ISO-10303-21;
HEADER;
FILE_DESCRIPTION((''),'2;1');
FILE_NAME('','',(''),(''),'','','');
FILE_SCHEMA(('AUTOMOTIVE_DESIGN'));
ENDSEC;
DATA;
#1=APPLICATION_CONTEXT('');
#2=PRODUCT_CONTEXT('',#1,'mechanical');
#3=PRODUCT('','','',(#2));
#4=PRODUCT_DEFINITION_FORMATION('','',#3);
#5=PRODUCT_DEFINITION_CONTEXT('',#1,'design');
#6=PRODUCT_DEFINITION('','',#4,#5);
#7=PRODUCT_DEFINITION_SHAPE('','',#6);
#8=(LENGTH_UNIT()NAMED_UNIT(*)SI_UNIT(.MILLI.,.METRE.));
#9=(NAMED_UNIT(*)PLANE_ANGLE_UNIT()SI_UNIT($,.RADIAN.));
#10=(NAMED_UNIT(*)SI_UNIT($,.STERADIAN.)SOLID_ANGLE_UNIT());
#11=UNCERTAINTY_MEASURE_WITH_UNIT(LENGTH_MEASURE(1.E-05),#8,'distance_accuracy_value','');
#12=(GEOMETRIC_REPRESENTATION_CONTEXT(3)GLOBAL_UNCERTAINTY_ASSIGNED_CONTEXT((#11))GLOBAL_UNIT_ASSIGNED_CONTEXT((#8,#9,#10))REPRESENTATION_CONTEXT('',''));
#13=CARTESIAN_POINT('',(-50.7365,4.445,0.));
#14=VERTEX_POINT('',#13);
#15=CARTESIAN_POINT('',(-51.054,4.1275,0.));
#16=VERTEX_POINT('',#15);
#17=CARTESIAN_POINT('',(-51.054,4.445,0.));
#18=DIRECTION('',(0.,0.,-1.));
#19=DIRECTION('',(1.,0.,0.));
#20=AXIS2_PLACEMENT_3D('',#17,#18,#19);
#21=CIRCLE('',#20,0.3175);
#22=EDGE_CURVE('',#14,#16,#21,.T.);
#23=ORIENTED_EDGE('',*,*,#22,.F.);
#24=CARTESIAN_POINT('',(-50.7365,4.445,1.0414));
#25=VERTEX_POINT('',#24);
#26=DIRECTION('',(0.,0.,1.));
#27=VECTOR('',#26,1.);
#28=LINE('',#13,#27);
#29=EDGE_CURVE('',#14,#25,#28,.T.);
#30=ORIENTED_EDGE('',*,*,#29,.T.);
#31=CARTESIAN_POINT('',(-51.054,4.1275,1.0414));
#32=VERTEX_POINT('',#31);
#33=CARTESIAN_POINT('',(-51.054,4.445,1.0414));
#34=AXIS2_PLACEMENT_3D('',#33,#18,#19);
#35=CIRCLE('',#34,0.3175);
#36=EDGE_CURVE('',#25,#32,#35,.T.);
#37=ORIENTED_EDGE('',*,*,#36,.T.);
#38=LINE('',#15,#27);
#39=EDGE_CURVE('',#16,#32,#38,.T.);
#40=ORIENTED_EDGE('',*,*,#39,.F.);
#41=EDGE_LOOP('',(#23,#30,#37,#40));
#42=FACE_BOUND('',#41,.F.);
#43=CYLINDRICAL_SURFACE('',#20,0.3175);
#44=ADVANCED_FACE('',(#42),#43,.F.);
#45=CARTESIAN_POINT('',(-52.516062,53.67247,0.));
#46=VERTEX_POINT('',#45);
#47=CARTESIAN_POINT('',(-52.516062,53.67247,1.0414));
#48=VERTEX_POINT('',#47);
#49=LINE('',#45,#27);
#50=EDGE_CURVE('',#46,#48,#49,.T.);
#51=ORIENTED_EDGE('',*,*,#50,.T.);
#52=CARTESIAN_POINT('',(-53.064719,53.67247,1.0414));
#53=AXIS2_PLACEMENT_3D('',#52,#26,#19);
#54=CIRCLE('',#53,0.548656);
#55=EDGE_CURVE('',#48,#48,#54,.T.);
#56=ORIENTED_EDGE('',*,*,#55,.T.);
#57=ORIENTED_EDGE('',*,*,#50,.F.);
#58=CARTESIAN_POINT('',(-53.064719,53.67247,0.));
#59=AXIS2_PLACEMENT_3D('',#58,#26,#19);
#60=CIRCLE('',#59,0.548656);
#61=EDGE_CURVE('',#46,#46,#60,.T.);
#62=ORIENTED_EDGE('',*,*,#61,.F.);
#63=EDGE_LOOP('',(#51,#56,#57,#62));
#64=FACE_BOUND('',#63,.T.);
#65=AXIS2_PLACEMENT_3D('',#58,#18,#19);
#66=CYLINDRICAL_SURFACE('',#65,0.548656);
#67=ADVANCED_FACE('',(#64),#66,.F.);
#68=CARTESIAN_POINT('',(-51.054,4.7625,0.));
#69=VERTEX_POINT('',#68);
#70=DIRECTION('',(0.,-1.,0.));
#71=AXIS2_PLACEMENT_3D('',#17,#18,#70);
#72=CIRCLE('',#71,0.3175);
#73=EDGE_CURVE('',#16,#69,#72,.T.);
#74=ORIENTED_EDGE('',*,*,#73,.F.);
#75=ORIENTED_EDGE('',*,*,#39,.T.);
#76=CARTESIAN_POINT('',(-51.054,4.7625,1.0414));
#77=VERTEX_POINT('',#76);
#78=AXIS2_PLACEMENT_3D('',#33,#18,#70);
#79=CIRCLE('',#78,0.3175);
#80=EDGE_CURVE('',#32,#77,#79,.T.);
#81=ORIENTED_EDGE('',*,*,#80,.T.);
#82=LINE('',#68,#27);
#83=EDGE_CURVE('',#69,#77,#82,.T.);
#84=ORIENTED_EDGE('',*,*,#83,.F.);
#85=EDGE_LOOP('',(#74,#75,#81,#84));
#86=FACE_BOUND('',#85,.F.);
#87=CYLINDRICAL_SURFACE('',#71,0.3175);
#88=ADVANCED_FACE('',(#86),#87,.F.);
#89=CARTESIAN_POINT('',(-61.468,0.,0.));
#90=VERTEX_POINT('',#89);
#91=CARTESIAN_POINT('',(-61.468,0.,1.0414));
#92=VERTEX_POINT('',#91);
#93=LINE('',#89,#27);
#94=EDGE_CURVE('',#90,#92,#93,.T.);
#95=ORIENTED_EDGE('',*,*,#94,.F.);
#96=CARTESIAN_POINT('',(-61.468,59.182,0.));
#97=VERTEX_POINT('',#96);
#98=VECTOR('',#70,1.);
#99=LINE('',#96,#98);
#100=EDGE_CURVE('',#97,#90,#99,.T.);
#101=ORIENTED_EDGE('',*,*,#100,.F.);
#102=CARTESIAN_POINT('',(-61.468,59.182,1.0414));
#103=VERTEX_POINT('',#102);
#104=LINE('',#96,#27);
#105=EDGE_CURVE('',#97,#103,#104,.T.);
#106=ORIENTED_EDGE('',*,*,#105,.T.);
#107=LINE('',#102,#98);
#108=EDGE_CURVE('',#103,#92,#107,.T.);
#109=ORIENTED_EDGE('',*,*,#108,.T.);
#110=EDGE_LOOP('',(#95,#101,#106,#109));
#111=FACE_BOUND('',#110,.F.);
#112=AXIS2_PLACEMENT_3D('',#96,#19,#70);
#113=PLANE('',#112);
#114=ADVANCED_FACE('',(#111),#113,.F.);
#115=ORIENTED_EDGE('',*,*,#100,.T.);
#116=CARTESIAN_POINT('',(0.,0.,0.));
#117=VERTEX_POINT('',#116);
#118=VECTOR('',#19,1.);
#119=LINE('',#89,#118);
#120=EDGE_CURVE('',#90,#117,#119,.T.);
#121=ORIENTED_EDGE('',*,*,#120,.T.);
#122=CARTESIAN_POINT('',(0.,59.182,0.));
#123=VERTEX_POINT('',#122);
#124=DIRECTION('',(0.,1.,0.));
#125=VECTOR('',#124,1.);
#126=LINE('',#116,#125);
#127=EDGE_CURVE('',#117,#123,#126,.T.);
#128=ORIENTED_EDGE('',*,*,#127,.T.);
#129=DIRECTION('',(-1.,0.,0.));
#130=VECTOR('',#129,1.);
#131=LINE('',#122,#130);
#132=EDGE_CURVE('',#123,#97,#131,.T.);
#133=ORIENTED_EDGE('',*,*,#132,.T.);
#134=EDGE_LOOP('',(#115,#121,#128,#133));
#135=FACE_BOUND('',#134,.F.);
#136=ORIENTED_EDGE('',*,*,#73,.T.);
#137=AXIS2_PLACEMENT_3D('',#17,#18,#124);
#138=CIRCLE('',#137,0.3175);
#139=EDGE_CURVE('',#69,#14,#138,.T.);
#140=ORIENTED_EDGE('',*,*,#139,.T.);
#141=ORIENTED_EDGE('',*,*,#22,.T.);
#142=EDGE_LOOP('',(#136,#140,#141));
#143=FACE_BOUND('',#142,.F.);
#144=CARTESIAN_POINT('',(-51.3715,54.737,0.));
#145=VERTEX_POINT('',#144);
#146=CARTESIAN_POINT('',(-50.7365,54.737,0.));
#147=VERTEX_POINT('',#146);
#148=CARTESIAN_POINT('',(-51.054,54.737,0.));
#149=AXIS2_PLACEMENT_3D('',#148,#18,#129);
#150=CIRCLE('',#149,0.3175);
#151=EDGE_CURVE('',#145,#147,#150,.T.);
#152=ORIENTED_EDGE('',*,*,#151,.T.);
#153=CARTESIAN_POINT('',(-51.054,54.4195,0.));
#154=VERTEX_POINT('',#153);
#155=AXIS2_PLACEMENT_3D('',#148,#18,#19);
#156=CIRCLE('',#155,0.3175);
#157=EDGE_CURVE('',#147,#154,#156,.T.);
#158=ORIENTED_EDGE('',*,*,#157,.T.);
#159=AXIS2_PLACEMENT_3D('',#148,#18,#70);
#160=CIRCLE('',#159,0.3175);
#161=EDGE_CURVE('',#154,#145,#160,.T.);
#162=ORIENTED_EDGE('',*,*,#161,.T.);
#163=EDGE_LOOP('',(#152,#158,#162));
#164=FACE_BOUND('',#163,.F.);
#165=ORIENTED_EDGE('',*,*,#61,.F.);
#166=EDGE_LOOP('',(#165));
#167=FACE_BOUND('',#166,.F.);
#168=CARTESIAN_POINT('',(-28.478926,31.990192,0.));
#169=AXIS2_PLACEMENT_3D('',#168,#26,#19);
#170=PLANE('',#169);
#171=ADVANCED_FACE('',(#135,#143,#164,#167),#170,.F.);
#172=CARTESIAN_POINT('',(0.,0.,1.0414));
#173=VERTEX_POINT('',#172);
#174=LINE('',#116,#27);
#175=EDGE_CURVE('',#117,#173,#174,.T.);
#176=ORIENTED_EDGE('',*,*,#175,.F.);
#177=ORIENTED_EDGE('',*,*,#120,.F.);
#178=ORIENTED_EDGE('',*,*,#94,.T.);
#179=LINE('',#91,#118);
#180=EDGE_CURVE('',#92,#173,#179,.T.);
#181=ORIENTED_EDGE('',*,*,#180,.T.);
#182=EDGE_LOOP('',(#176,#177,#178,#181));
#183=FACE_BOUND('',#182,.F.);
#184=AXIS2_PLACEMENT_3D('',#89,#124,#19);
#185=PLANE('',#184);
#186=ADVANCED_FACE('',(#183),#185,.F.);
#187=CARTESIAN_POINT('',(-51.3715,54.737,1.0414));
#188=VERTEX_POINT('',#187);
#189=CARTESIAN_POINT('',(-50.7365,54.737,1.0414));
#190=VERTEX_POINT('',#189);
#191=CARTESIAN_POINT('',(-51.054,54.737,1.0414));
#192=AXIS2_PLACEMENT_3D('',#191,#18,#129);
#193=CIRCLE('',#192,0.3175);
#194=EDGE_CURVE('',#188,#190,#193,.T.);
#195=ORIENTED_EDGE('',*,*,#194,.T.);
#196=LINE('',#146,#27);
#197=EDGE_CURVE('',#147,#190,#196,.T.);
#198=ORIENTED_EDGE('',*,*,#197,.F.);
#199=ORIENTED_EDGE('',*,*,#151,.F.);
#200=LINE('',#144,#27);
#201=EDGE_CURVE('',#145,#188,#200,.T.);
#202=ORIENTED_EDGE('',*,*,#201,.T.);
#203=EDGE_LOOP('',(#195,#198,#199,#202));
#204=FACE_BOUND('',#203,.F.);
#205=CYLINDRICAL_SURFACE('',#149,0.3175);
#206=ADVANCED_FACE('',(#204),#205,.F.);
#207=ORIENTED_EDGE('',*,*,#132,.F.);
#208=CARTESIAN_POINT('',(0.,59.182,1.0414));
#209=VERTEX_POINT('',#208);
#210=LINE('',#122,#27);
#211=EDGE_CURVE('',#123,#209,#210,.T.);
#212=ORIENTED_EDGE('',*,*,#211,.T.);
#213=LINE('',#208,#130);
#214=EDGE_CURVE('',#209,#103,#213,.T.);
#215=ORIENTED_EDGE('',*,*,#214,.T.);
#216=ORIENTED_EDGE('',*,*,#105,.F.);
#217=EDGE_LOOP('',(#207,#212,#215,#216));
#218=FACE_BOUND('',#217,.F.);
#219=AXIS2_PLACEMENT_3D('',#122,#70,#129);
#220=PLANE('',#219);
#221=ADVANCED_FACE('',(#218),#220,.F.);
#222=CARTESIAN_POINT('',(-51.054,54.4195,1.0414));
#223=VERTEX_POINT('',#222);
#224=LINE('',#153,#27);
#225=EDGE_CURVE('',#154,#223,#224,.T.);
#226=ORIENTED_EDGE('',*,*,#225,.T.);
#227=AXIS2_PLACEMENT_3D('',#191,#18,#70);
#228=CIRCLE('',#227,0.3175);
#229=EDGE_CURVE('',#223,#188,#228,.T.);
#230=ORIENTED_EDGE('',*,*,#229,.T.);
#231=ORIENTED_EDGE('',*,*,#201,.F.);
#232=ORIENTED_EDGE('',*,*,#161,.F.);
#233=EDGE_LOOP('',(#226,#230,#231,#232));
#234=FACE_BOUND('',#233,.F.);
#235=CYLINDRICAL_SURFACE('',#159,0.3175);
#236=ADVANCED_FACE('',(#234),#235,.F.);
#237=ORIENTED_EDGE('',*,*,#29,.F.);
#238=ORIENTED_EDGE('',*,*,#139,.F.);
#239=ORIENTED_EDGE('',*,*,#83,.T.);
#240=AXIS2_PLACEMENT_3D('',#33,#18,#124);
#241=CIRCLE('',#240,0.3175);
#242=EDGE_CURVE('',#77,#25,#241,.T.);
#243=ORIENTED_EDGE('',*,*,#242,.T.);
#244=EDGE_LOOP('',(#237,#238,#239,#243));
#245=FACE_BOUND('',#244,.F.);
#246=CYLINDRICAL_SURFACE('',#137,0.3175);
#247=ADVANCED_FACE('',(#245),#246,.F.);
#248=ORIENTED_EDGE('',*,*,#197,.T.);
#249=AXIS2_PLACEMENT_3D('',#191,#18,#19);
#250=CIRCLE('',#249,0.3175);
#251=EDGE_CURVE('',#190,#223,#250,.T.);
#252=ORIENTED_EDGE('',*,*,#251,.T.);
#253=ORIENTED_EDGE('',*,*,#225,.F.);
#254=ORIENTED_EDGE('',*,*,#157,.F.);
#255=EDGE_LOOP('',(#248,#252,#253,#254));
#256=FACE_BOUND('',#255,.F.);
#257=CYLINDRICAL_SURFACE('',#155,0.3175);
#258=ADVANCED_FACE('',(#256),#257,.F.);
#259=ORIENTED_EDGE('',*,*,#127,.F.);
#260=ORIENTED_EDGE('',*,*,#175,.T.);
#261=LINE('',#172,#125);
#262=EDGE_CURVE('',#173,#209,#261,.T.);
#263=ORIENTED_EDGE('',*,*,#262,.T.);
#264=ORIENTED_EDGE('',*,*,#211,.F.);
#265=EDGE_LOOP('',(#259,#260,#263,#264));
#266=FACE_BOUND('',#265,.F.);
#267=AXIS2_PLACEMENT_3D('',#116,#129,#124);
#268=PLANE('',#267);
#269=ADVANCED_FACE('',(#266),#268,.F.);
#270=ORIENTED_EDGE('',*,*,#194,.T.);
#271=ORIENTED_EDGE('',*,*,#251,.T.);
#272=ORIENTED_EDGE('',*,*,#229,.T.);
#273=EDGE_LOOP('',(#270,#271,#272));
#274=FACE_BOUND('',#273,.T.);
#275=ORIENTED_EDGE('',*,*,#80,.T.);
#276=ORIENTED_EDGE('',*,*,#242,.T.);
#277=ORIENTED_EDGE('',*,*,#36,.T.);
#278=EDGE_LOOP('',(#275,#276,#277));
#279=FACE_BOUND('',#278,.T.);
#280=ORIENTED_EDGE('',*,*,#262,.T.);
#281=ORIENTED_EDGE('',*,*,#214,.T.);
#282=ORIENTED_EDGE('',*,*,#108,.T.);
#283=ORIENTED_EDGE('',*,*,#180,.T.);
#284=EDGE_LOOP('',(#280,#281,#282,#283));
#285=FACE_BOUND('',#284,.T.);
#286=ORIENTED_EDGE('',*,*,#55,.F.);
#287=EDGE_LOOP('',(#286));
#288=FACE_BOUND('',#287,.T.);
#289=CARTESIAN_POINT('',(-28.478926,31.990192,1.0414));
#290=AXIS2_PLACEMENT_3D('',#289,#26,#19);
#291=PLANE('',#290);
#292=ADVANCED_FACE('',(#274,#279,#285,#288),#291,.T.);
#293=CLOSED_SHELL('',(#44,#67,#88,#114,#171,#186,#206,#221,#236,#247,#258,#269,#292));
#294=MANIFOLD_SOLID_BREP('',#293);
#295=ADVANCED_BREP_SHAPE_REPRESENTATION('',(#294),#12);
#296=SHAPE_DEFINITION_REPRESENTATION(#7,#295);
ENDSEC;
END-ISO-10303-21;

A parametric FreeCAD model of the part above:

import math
import FreeCAD as App
import Part
import Sketcher

V = App.Vector
Q = App.Units.Quantity

doc = App.newDocument("Part")
params = doc.addObject("Spreadsheet::Sheet", "Params")
for row, (alias, value) in enumerate([
    ("sketch1_width", "2.42 in"),
    ("sketch1_height", "2.33 in"),
    ("pad1_length", "0.041 in"),
], start=1):
    params.set(f"A{row}", alias)
    params.set(f"B{row}", "=" + value)
    params.setAlias(f"B{row}", alias)

body = doc.addObject("PartDesign::Body", "Body")

# Sketch on XY plane
sketch1 = doc.addObject("Sketcher::SketchObject", "Sketch")
body.addObject(sketch1)
sketch1.AttachmentSupport = (doc.XY_Plane, [""])
sketch1.MapMode = "FlatFace"
sketch1.addGeometry([
    Part.LineSegment(V(0, 0, 0), V(0, 59.182, 0)),  # 0
    Part.LineSegment(V(0, 59.182, 0), V(-61.468, 59.182, 0)),  # 1
    Part.LineSegment(V(-61.468, 59.182, 0), V(-61.468, 0, 0)),  # 2
    Part.LineSegment(V(-61.468, 0, 0), V(0, 0, 0)),  # 3
    Part.ArcOfCircle(Part.Circle(V(-51.054, 4.445, 0), V(0, 0, 1), 0.3175), math.radians(-90), math.radians(0)),  # 4
    Part.ArcOfCircle(Part.Circle(V(-51.054, 4.445, 0), V(0, 0, 1), 0.3175), math.radians(90), math.radians(270)),  # 5
    Part.ArcOfCircle(Part.Circle(V(-51.054, 4.445, 0), V(0, 0, 1), 0.3175), math.radians(0), math.radians(90)),  # 6
    Part.ArcOfCircle(Part.Circle(V(-51.054, 54.737, 0), V(0, 0, 1), 0.3175), math.radians(-90), math.radians(0)),  # 7
    Part.ArcOfCircle(Part.Circle(V(-51.054, 54.737, 0), V(0, 0, 1), 0.3175), math.radians(180), math.radians(270)),  # 8
    Part.ArcOfCircle(Part.Circle(V(-51.054, 54.737, 0), V(0, 0, 1), 0.3175), math.radians(0), math.radians(180)),  # 9
    Part.Circle(V(-53.064719, 53.67247, 0), V(0, 0, 1), 0.548656),  # 10
], False)
sketch1.addConstraint([
    Sketcher.Constraint("Coincident", 0, 2, 1, 1),
    Sketcher.Constraint("Coincident", 1, 2, 2, 1),
    Sketcher.Constraint("Coincident", 2, 2, 3, 1),
    Sketcher.Constraint("Coincident", 3, 2, 0, 1),
    Sketcher.Constraint("Tangent", 4, 1, 5, 2),
    Sketcher.Constraint("Tangent", 5, 1, 6, 2),
    Sketcher.Constraint("Tangent", 6, 1, 4, 2),
    Sketcher.Constraint("Tangent", 7, 1, 8, 2),
    Sketcher.Constraint("Tangent", 8, 1, 9, 2),
    Sketcher.Constraint("Tangent", 9, 1, 7, 2),
    Sketcher.Constraint("Vertical", 0),
    Sketcher.Constraint("Horizontal", 1),
    Sketcher.Constraint("Vertical", 2),
    Sketcher.Constraint("Horizontal", 3),
    Sketcher.Constraint("Coincident", 3, 2, -1, 1),
    Sketcher.Constraint("Equal", 6, 7),
    Sketcher.Constraint("Horizontal", 5, 3, 6, 1),
    Sketcher.Constraint("Horizontal", 9, 3, 8, 1),
    Sketcher.Constraint("Horizontal", 8, 1, 9, 1),
    Sketcher.Constraint("Vertical", 6, 3, 7, 3),
    Sketcher.Constraint("Vertical", 9, 3, 4, 1),
    Sketcher.Constraint("Vertical", 4, 1, 5, 1),
    Sketcher.Constraint("Vertical", 5, 1, 7, 1),
    Sketcher.Constraint("DistanceX", 1, 2, 1, 1, Q("2.42 in")),
    Sketcher.Constraint("DistanceY", 0, 1, 0, 2, Q("2.33 in")),
    Sketcher.Constraint("Radius", 4, Q("0.0125 in")),
    Sketcher.Constraint("DistanceX", 4, 3, -1, 1, Q("2.01 in")),
    Sketcher.Constraint("DistanceY", 4, 3, 7, 3, Q("1.98 in")),
    Sketcher.Constraint("DistanceY", -1, 1, 4, 3, Q("0.175 in")),
    Sketcher.Constraint("Diameter", 10, 1.097313),
    Sketcher.Constraint("DistanceX", 10, 3, -1, 1, 53.064719),
    Sketcher.Constraint("DistanceY", -1, 1, 10, 3, 53.67247),
])
sketch1.setExpression("Constraints[23]", "Params.sketch1_width")
sketch1.setExpression("Constraints[24]", "Params.sketch1_height")
pad1 = doc.addObject("PartDesign::Pad", "Pad")
body.addObject(pad1)
pad1.Profile = sketch1
pad1.setExpression("Length", "Params.pad1_length")

doc.recompute()
